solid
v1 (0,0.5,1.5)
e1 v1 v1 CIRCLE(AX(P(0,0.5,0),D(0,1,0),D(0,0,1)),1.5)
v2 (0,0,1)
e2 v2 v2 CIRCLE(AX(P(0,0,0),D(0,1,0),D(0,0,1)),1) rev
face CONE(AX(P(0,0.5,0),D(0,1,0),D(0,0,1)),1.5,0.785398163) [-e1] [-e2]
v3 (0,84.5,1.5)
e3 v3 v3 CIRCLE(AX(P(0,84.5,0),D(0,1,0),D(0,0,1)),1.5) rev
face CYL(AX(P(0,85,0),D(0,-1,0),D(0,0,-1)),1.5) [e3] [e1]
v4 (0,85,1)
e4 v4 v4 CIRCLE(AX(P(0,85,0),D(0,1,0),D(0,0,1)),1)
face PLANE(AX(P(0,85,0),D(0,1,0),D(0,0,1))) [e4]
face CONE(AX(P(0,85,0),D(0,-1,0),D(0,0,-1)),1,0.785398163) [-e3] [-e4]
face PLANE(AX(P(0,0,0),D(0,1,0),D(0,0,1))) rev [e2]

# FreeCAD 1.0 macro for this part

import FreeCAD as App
import Part
import Sketcher
from FreeCAD import Vector


def edges_at(feature, points):
    """Names of the edges that pass closest to the given points."""
    edges = feature.Shape.Edges
    near = lambda p: min(range(len(edges)), key=lambda i: edges[i].distToShape(Part.Vertex(*p))[0])
    return sorted({f"Edge{near(p) + 1}" for p in points})

doc = App.newDocument("Part")
body = doc.addObject("PartDesign::Body", "Body")

# Sketch on XZ plane
sketch1 = doc.addObject("Sketcher::SketchObject", "Sketch")
body.addObject(sketch1)
sketch1.AttachmentSupport = (doc.XZ_Plane, [""])
sketch1.MapMode = "FlatFace"
sketch1.addGeometry(Part.Circle(Vector(0, 0, 0), Vector(0, 0, 1), 1.5), False)
sketch1.addConstraint([
    Sketcher.Constraint("Coincident", 0, 3, -1, 1),
    Sketcher.Constraint("Diameter", 0, 3.0),
])
pad1 = doc.addObject("PartDesign::Pad", "Pad")
body.addObject(pad1)
pad1.Profile = sketch1
pad1.Length = 85
pad1.Reversed = True
doc.recompute()

chamfer = doc.addObject("PartDesign::Chamfer", "Chamfer")
body.addObject(chamfer)
chamfer.Base = (pad1, edges_at(pad1, [(-1.5, 0, 0), (-1.5, 85, 0)]))
chamfer.Size = 0.5

doc.recompute()
